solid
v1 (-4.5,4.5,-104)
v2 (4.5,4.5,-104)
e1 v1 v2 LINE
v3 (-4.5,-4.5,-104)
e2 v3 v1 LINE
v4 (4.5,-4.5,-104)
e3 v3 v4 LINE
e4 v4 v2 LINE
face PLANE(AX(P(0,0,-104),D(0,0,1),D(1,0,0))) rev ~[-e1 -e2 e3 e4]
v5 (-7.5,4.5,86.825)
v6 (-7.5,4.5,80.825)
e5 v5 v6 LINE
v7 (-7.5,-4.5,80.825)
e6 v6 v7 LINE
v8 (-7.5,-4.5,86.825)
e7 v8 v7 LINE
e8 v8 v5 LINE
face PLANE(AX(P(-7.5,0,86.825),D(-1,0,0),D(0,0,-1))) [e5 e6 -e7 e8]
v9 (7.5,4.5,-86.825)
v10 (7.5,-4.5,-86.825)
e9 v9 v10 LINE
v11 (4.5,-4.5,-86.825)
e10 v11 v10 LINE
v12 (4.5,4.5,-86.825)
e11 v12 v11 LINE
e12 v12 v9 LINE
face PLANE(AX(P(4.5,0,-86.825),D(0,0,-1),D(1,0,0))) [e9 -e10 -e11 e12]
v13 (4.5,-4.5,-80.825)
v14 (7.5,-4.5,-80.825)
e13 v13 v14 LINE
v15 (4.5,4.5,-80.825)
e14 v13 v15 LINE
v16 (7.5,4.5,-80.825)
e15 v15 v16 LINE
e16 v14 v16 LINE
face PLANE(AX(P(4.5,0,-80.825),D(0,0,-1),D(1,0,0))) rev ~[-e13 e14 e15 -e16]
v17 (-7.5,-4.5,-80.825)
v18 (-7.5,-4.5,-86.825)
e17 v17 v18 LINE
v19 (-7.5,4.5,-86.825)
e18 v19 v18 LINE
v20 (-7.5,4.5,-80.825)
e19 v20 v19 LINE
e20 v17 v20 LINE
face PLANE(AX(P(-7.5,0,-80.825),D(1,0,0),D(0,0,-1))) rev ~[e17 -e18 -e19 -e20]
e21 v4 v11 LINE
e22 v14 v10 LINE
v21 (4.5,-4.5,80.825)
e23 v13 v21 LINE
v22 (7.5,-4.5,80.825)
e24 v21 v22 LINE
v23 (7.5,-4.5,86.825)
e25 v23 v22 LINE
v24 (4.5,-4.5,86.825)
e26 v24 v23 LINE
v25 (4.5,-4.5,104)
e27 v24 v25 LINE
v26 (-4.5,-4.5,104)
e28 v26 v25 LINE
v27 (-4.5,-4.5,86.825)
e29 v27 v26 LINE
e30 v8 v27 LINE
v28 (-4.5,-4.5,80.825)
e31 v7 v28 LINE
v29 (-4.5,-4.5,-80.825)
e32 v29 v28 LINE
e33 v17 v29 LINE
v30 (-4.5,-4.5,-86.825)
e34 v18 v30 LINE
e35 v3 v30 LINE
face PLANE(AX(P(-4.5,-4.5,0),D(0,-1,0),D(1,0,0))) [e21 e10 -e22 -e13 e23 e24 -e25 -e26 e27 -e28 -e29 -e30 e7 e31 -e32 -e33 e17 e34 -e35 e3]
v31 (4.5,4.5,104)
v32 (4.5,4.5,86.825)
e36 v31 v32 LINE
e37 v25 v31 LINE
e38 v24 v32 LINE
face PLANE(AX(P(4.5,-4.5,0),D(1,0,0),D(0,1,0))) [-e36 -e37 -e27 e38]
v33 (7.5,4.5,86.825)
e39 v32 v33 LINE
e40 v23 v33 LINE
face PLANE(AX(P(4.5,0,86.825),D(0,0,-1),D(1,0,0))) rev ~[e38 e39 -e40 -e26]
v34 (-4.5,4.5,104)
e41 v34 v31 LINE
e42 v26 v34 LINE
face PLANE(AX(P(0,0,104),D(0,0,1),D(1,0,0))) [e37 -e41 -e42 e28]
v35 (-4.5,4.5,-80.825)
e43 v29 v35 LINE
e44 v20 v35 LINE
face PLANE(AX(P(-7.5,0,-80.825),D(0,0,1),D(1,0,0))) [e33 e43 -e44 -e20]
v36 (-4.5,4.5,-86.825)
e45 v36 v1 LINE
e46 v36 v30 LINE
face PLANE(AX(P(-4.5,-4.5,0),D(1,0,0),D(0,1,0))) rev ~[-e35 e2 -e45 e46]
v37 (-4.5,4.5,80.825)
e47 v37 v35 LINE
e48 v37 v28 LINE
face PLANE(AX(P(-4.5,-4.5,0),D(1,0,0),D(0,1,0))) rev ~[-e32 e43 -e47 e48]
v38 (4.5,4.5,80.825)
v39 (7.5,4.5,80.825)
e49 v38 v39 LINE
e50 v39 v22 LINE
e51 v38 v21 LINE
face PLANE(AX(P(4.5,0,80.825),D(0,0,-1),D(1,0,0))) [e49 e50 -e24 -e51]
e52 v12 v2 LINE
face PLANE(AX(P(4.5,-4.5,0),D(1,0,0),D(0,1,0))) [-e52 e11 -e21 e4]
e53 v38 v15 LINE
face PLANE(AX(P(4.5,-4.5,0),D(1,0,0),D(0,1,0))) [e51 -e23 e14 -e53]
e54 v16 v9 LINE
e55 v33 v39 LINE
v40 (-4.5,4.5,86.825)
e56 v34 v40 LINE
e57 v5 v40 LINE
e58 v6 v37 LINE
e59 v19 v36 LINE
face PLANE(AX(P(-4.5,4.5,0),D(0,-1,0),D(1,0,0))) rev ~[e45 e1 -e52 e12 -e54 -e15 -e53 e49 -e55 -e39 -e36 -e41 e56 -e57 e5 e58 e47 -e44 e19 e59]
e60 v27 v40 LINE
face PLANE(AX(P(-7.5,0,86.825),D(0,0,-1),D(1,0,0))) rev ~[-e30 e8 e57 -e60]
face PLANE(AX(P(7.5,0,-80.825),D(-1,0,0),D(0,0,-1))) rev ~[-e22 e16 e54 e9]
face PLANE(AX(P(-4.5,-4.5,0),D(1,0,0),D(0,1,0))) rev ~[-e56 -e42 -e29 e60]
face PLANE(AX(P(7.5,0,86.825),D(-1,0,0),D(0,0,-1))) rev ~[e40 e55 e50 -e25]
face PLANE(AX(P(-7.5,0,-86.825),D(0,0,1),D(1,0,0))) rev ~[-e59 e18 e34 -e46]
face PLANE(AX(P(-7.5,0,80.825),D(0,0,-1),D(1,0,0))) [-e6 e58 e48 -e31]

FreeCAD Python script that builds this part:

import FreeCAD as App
import Part
import Sketcher
from FreeCAD import Vector
Q = App.Units.Quantity

doc = App.newDocument("Part")
params = doc.addObject("Spreadsheet::Sheet", "Params")
for row, (alias, value) in enumerate([
    ("sketch1_width", "9 mm"),
    ("pad1_length", "208 mm"),
    ("sketch2_width", "3 mm"),
    ("sketch2_height", "6 mm"),
    ("pad2_length", "9 mm"),
], start=1):
    params.set(f"A{row}", alias)
    params.set(f"B{row}", "=" + value)
    params.setAlias(f"B{row}", alias)

body = doc.addObject("PartDesign::Body", "Body")

# Sketch on XY plane
sketch1 = body.newObject("Sketcher::SketchObject", "Sketch")
sketch1.AttachmentSupport = (doc.getObject("XY_Plane"), [""])
sketch1.MapMode = "FlatFace"
sketch1.addGeometry(Part.LineSegment(Vector(-4.5, 4.5, 0), Vector(-4.5, -4.5, 0)), False)
sketch1.addGeometry(Part.LineSegment(Vector(-4.5, -4.5, 0), Vector(4.5, -4.5, 0)), False)
sketch1.addGeometry(Part.LineSegment(Vector(4.5, -4.5, 0), Vector(4.5, 4.5, 0)), False)
sketch1.addGeometry(Part.LineSegment(Vector(4.5, 4.5, 0), Vector(-4.5, 4.5, 0)), False)
sketch1.addConstraint(Sketcher.Constraint("Coincident", 0, 2, 1, 1))
sketch1.addConstraint(Sketcher.Constraint("Coincident", 1, 2, 2, 1))
sketch1.addConstraint(Sketcher.Constraint("Coincident", 2, 2, 3, 1))
sketch1.addConstraint(Sketcher.Constraint("Coincident", 3, 2, 0, 1))
sketch1.addConstraint(Sketcher.Constraint("Vertical", 0))
sketch1.addConstraint(Sketcher.Constraint("Horizontal", 1))
sketch1.addConstraint(Sketcher.Constraint("Vertical", 2))
sketch1.addConstraint(Sketcher.Constraint("Horizontal", 3))
sketch1.addConstraint(Sketcher.Constraint("Symmetric", 0, 2, 2, 2, -1, 1))
sketch1.addConstraint(Sketcher.Constraint("Equal", 3, 0))
sketch1.addConstraint(Sketcher.Constraint("DistanceX", 1, 1, 1, 2, Q("9 mm")))
sketch1.setExpression("Constraints[10]", "Params.sketch1_width")
pad1 = body.newObject("PartDesign::Pad", "Pad")
pad1.Profile = sketch1
pad1.setExpression("Length", "Params.pad1_length")
pad1.Midplane = True

# Sketch on XZ plane
sketch2 = body.newObject("Sketcher::SketchObject", "Sketch001")
sketch2.AttachmentSupport = (doc.getObject("XZ_Plane"), [""])
sketch2.MapMode = "FlatFace"
sketch2.addGeometry(Part.LineSegment(Vector(-7.5, 80.825, 0), Vector(-7.5, 86.825, 0)), False)
sketch2.addGeometry(Part.LineSegment(Vector(-7.5, 86.825, 0), Vector(-4.5, 86.825, 0)), False)
sketch2.addGeometry(Part.LineSegment(Vector(-4.5, 86.825, 0), Vector(-4.5, 80.825, 0)), False)
sketch2.addGeometry(Part.LineSegment(Vector(-4.5, 80.825, 0), Vector(-7.5, 80.825, 0)), False)
sketch2.addGeometry(Part.LineSegment(Vector(4.5, 80.825, 0), Vector(4.5, 86.825, 0)), False)
sketch2.addGeometry(Part.LineSegment(Vector(4.5, 86.825, 0), Vector(7.5, 86.825, 0)), False)
sketch2.addGeometry(Part.LineSegment(Vector(7.5, 86.825, 0), Vector(7.5, 80.825, 0)), False)
sketch2.addGeometry(Part.LineSegment(Vector(7.5, 80.825, 0), Vector(4.5, 80.825, 0)), False)
sketch2.addGeometry(Part.LineSegment(Vector(4.5, -86.825, 0), Vector(4.5, -80.825, 0)), False)
sketch2.addGeometry(Part.LineSegment(Vector(4.5, -80.825, 0), Vector(7.5, -80.825, 0)), False)
sketch2.addGeometry(Part.LineSegment(Vector(7.5, -80.825, 0), Vector(7.5, -86.825, 0)), False)
sketch2.addGeometry(Part.LineSegment(Vector(7.5, -86.825, 0), Vector(4.5, -86.825, 0)), False)
sketch2.addGeometry(Part.LineSegment(Vector(-7.5, -86.825, 0), Vector(-7.5, -80.825, 0)), False)
sketch2.addGeometry(Part.LineSegment(Vector(-7.5, -80.825, 0), Vector(-4.5, -80.825, 0)), False)
sketch2.addGeometry(Part.LineSegment(Vector(-4.5, -80.825, 0), Vector(-4.5, -86.825, 0)), False)
sketch2.addGeometry(Part.LineSegment(Vector(-4.5, -86.825, 0), Vector(-7.5, -86.825, 0)), False)
sketch2.addConstraint(Sketcher.Constraint("Coincident", 0, 2, 1, 1))
sketch2.addConstraint(Sketcher.Constraint("Coincident", 1, 2, 2, 1))
sketch2.addConstraint(Sketcher.Constraint("Coincident", 2, 2, 3, 1))
sketch2.addConstraint(Sketcher.Constraint("Coincident", 3, 2, 0, 1))
sketch2.addConstraint(Sketcher.Constraint("Coincident", 4, 2, 5, 1))
sketch2.addConstraint(Sketcher.Constraint("Coincident", 5, 2, 6, 1))
sketch2.addConstraint(Sketcher.Constraint("Coincident", 6, 2, 7, 1))
sketch2.addConstraint(Sketcher.Constraint("Coincident", 7, 2, 4, 1))
sketch2.addConstraint(Sketcher.Constraint("Coincident", 8, 2, 9, 1))
sketch2.addConstraint(Sketcher.Constraint("Coincident", 9, 2, 10, 1))
sketch2.addConstraint(Sketcher.Constraint("Coincident", 10, 2, 11, 1))
sketch2.addConstraint(Sketcher.Constraint("Coincident", 11, 2, 8, 1))
sketch2.addConstraint(Sketcher.Constraint("Coincident", 12, 2, 13, 1))
sketch2.addConstraint(Sketcher.Constraint("Coincident", 13, 2, 14, 1))
sketch2.addConstraint(Sketcher.Constraint("Coincident", 14, 2, 15, 1))
sketch2.addConstraint(Sketcher.Constraint("Coincident", 15, 2, 12, 1))
sketch2.addConstraint(Sketcher.Constraint("Vertical", 0))
sketch2.addConstraint(Sketcher.Constraint("Horizontal", 1))
sketch2.addConstraint(Sketcher.Constraint("Vertical", 2))
sketch2.addConstraint(Sketcher.Constraint("Horizontal", 3))
sketch2.addConstraint(Sketcher.Constraint("Vertical", 4))
sketch2.addConstraint(Sketcher.Constraint("Horizontal", 5))
sketch2.addConstraint(Sketcher.Constraint("Vertical", 6))
sketch2.addConstraint(Sketcher.Constraint("Horizontal", 7))
sketch2.addConstraint(Sketcher.Constraint("Vertical", 8))
sketch2.addConstraint(Sketcher.Constraint("Horizontal", 9))
sketch2.addConstraint(Sketcher.Constraint("Vertical", 10))
sketch2.addConstraint(Sketcher.Constraint("Horizontal", 11))
sketch2.addConstraint(Sketcher.Constraint("Vertical", 12))
sketch2.addConstraint(Sketcher.Constraint("Horizontal", 13))
sketch2.addConstraint(Sketcher.Constraint("Vertical", 14))
sketch2.addConstraint(Sketcher.Constraint("Horizontal", 15))
sketch2.addConstraint(Sketcher.Constraint("Symmetric", 2, 2, 8, 2, -1, 1))
sketch2.addConstraint(Sketcher.Constraint("Symmetric", 0, 2, 10, 2, -1, 1))
sketch2.addConstraint(Sketcher.Constraint("Symmetric", 6, 2, 12, 2, -1, 1))
sketch2.addConstraint(Sketcher.Constraint("Symmetric", 4, 2, 14, 2, -1, 1))
sketch2.addConstraint(Sketcher.Constraint("Symmetric", 1, 2, 4, 2, -2))
sketch2.addConstraint(Sketcher.Constraint("Symmetric", 3, 2, 6, 2, -2))
sketch2.addConstraint(Sketcher.Constraint("DistanceX", 1, 1, 1, 2, Q("3 mm")))
sketch2.addConstraint(Sketcher.Constraint("DistanceY", 0, 1, 0, 2, Q("6 mm")))
sketch2.addConstraint(Sketcher.Constraint("DistanceX", 1, 2, 4, 2, Q("9 mm")))
sketch2.addConstraint(Sketcher.Constraint("DistanceY", 8, 2, 7, 2, Q("161.65 mm")))
sketch2.setExpression("Constraints[38]", "Params.sketch2_width")
sketch2.setExpression("Constraints[39]", "Params.sketch2_height")
pad2 = body.newObject("PartDesign::Pad", "Pad001")
pad2.Profile = sketch2
pad2.setExpression("Length", "Params.pad2_length")
pad2.Midplane = True

doc.recompute()
